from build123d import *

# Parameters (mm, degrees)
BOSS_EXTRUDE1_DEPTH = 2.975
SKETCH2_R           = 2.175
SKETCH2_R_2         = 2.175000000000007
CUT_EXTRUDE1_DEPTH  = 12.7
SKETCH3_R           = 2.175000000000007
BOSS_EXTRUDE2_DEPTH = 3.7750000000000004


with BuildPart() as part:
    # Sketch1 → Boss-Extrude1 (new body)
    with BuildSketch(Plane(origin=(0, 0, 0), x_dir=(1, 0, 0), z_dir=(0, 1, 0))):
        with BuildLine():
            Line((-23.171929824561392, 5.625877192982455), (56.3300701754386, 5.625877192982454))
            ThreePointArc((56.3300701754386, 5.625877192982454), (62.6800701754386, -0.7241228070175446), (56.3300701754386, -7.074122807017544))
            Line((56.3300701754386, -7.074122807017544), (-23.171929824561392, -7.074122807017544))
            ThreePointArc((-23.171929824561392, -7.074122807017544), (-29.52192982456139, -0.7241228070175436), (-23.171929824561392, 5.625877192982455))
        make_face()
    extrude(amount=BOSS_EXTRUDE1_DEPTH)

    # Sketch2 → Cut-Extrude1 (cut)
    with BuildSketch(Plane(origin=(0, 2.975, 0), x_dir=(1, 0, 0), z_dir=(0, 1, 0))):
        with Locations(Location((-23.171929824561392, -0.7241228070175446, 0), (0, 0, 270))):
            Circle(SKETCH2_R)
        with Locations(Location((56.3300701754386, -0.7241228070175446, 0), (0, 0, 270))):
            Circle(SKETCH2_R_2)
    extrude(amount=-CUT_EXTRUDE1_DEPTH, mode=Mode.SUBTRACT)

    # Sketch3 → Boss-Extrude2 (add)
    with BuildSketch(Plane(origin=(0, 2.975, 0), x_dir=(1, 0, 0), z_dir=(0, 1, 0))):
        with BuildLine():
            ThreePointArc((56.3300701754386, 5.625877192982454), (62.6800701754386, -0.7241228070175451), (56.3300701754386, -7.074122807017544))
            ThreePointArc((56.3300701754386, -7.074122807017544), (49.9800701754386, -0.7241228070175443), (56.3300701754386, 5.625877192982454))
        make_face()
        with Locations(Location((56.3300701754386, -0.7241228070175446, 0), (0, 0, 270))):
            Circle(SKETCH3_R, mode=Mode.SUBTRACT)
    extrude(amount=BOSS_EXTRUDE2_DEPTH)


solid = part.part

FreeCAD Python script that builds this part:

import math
import FreeCAD as App
import Part
import Sketcher
Q = App.Units.Quantity

doc = App.newDocument("Part")
body = doc.addObject("PartDesign::Body", "Body")

# Sketch on XZ plane
sketch1 = body.newObject("Sketcher::SketchObject", "Sketch")
sketch1.AttachmentSupport = (doc.getObject("XZ_Plane"), [""])
sketch1.MapMode = "FlatFace"
sketch1.addGeometry([
    Part.LineSegment(App.Vector(56.33007, -5.625877, 0), App.Vector(-23.17193, -5.625877, 0)),
    Part.ArcOfCircle(Part.Circle(App.Vector(-23.17193, 0.724123, 0), App.Vector(0, 0, 1), 6.35), math.radians(90), math.radians(270)),
    Part.LineSegment(App.Vector(-23.17193, 7.074123, 0), App.Vector(56.33007, 7.074123, 0)),
    Part.ArcOfCircle(Part.Circle(App.Vector(56.33007, 0.724123, 0), App.Vector(0, 0, 1), 6.35), math.radians(-90), math.radians(90)),
], False)
sketch1.addConstraint([
    Sketcher.Constraint("Tangent", 0, 2, 1, 2),
    Sketcher.Constraint("Tangent", 1, 1, 2, 1),
    Sketcher.Constraint("Tangent", 2, 2, 3, 2),
    Sketcher.Constraint("Tangent", 3, 1, 0, 1),
    Sketcher.Constraint("Horizontal", 0),
    Sketcher.Constraint("Horizontal", 2),
    Sketcher.Constraint("Radius", 1, Q("0.25 in")),
    Sketcher.Constraint("DistanceX", 0, 2, 0, 1, Q("3.13 in")),
    Sketcher.Constraint("DistanceX", 1, 3, -1, 1, 23.17193),
    Sketcher.Constraint("DistanceY", -1, 1, 1, 3, 0.724123),
])
pad1 = body.newObject("PartDesign::Pad", "Pad")
pad1.Profile = sketch1
pad1.Length = 2.975
pad1.Reversed = True

# Sketch on XZ plane
sketch2 = body.newObject("Sketcher::SketchObject", "Sketch001")
sketch2.AttachmentSupport = (doc.getObject("XZ_Plane"), [""])
sketch2.MapMode = "FlatFace"
sketch2.AttachmentOffset = App.Placement(App.Vector(0, 0, -2.975), App.Rotation())
sketch2.addGeometry([
    Part.Circle(App.Vector(-23.17193, 0.724123, 0), App.Vector(0, 0, 1), 2.175),
    Part.Circle(App.Vector(56.33007, 0.724123, 0), App.Vector(0, 0, 1), 2.175),
], False)
sketch2.addConstraint([
    Sketcher.Constraint("Equal", 0, 1),
    Sketcher.Constraint("Horizontal", 0, 3, 1, 3),
    Sketcher.Constraint("Diameter", 0, 4.35),
    Sketcher.Constraint("DistanceX", 0, 3, 1, 3, Q("3.13 in")),
    Sketcher.Constraint("DistanceX", 0, 3, -1, 1, 23.17193),
    Sketcher.Constraint("DistanceY", -1, 1, 0, 3, 0.724123),
])
pocket1 = body.newObject("PartDesign::Pocket", "Pocket")
pocket1.Profile = sketch2
pocket1.Length = Q("0.5 in")
pocket1.Reversed = True

# Sketch on XZ plane
sketch3 = body.newObject("Sketcher::SketchObject", "Sketch002")
sketch3.AttachmentSupport = (doc.getObject("XZ_Plane"), [""])
sketch3.MapMode = "FlatFace"
sketch3.AttachmentOffset = App.Placement(App.Vector(0, 0, -2.975), App.Rotation())
sketch3.addGeometry([
    Part.Circle(App.Vector(56.33007, 0.724123, 0), App.Vector(0, 0, 1), 6.35),
    Part.Circle(App.Vector(56.33007, 0.724123, 0), App.Vector(0, 0, 1), 2.175),
], False)
sketch3.addConstraint([
    Sketcher.Constraint("Coincident", 1, 3, 0, 3),
    Sketcher.Constraint("Diameter", 0, Q("0.5 in")),
    Sketcher.Constraint("Diameter", 1, 4.35),
    Sketcher.Constraint("DistanceX", -1, 1, 0, 3, 56.33007),
    Sketcher.Constraint("DistanceY", -1, 1, 0, 3, 0.724123),
])
pad2 = body.newObject("PartDesign::Pad", "Pad001")
pad2.Profile = sketch3
pad2.Length = 3.775
pad2.Reversed = True

doc.recompute()
